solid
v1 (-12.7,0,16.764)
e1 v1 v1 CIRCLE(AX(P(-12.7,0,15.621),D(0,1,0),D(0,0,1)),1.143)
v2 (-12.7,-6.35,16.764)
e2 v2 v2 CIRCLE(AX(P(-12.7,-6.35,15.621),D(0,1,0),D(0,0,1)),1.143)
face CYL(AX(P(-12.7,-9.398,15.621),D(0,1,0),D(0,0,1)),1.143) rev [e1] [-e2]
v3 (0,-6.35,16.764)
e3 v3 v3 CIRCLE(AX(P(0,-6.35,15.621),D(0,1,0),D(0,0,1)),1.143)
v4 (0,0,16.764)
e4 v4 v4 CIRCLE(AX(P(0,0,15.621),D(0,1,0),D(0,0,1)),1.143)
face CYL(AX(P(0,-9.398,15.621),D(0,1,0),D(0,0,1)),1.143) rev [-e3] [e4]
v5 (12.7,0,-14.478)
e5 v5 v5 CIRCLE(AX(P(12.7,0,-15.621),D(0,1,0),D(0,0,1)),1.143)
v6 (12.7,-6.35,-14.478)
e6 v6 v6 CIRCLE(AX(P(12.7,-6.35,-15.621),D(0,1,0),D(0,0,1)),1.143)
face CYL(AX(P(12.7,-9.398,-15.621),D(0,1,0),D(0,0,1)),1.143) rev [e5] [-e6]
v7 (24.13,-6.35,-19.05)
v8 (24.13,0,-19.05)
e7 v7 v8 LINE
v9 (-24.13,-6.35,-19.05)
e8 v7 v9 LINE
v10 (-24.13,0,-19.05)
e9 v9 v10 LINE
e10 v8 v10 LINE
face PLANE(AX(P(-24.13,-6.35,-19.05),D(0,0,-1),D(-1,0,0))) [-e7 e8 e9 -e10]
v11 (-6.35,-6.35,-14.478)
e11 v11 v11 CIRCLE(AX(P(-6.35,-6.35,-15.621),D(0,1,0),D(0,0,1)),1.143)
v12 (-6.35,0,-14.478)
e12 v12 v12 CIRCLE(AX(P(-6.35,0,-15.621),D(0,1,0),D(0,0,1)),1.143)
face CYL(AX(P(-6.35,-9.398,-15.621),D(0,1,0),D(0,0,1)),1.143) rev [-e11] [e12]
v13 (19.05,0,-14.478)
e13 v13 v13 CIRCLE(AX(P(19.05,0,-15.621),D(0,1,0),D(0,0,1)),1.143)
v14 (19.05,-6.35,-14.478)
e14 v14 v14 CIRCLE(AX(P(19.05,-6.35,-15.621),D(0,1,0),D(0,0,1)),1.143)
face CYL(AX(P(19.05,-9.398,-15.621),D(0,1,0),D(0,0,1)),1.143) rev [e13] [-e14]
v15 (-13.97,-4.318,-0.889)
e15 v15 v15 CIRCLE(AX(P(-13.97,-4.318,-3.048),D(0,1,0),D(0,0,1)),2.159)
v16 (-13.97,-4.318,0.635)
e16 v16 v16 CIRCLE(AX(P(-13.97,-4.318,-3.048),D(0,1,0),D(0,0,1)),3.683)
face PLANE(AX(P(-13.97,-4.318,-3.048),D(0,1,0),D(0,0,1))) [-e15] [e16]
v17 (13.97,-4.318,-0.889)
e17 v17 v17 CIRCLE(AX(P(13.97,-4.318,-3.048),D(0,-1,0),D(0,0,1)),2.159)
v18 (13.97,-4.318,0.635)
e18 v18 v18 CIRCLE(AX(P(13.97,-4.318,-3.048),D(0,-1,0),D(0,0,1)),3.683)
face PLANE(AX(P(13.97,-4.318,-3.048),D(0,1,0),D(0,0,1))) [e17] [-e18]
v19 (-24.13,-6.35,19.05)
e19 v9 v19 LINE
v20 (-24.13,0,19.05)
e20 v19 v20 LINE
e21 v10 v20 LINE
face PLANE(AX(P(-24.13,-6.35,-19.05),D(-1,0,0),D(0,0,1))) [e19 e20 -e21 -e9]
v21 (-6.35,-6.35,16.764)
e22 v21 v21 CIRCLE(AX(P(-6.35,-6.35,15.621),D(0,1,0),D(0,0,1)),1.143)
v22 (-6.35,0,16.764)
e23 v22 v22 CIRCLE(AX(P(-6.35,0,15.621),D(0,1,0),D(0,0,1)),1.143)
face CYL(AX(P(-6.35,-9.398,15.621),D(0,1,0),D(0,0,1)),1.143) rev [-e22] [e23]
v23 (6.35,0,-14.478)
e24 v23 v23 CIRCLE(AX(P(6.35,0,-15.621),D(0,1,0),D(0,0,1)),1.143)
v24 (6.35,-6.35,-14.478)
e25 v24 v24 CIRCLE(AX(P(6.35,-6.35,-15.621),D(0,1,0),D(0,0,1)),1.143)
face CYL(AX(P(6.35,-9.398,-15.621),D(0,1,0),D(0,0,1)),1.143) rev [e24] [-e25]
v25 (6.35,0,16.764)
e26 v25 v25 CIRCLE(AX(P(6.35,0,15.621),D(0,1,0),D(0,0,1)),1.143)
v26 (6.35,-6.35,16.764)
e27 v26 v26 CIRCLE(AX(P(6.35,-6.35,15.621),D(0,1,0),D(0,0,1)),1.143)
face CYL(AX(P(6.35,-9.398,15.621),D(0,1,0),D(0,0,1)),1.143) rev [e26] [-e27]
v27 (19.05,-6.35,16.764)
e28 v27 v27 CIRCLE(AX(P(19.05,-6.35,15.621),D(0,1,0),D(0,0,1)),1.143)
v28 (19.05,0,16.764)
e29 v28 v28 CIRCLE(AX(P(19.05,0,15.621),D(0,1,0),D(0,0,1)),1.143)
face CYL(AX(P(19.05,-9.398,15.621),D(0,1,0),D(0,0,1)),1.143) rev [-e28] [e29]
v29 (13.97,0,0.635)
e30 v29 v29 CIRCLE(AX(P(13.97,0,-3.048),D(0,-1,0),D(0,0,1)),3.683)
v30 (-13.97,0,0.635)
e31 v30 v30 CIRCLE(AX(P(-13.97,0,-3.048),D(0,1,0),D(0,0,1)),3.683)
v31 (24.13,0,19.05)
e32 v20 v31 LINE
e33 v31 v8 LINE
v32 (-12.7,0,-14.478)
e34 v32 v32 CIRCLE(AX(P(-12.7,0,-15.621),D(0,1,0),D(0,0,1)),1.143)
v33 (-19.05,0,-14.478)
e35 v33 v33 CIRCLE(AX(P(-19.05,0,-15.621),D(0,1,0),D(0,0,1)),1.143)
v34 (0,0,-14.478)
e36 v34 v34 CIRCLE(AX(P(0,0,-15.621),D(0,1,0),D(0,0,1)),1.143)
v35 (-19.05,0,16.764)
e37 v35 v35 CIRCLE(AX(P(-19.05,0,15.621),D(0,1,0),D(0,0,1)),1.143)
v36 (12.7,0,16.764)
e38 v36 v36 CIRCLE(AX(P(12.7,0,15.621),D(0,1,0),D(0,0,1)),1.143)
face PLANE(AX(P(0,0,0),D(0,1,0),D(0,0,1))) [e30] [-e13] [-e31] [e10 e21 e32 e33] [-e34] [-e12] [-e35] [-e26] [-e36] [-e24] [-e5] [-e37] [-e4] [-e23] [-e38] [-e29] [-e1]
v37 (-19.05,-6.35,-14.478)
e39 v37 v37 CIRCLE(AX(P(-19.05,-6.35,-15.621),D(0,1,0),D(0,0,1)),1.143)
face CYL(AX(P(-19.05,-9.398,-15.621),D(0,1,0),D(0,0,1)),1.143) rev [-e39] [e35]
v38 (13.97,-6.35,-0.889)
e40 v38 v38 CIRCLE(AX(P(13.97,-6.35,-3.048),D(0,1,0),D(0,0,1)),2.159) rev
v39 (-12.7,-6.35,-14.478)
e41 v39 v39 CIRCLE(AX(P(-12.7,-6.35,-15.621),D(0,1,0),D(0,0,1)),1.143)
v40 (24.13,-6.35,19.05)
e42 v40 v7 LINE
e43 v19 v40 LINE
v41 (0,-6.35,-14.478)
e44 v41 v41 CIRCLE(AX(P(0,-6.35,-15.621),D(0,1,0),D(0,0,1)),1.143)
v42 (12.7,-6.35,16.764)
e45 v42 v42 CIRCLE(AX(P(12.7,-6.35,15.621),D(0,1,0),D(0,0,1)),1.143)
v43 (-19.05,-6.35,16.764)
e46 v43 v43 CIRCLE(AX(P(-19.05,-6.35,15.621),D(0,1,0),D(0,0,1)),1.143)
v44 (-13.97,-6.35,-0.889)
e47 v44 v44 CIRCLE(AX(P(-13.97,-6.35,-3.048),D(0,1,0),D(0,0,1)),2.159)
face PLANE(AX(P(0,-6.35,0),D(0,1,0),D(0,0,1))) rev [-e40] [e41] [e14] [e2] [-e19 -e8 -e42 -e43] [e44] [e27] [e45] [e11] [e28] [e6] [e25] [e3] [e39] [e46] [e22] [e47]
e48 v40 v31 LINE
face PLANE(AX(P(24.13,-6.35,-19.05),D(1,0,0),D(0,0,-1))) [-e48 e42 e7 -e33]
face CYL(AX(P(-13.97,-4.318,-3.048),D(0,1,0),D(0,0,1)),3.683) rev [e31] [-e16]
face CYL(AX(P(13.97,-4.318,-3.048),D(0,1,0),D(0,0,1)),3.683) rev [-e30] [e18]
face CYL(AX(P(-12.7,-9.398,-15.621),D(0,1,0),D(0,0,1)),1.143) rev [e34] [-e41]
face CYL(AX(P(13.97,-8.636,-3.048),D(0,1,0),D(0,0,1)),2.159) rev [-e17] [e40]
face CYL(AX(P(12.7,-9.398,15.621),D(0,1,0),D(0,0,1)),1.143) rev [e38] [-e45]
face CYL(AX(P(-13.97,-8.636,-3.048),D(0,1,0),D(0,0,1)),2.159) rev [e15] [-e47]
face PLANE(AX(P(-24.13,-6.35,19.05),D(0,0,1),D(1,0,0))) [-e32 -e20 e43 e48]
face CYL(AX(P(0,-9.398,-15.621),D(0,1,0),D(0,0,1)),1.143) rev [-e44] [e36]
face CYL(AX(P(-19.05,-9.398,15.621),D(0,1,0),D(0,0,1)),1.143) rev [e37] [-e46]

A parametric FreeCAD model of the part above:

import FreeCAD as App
import Part
import Sketcher
Q = App.Units.Quantity

doc = App.newDocument("Part")
body = doc.addObject("PartDesign::Body", "Body")

# Sketch on XZ plane
sketch1 = body.newObject("Sketcher::SketchObject", "Sketch")
sketch1.AttachmentSupport = (doc.getObject("XZ_Plane"), [""])
sketch1.MapMode = "FlatFace"
sketch1.addGeometry([
    Part.LineSegment(App.Vector(-24.13, -19.05, 0), App.Vector(-24.13, 19.05, 0)),
    Part.LineSegment(App.Vector(-24.13, 19.05, 0), App.Vector(24.13, 19.05, 0)),
    Part.LineSegment(App.Vector(24.13, 19.05, 0), App.Vector(24.13, -19.05, 0)),
    Part.LineSegment(App.Vector(24.13, -19.05, 0), App.Vector(-24.13, -19.05, 0)),
], False)
sketch1.addConstraint([
    Sketcher.Constraint("Coincident", 0, 2, 1, 1),
    Sketcher.Constraint("Coincident", 1, 2, 2, 1),
    Sketcher.Constraint("Coincident", 2, 2, 3, 1),
    Sketcher.Constraint("Coincident", 3, 2, 0, 1),
    Sketcher.Constraint("Vertical", 0),
    Sketcher.Constraint("Horizontal", 1),
    Sketcher.Constraint("Vertical", 2),
    Sketcher.Constraint("Horizontal", 3),
    Sketcher.Constraint("Symmetric", 0, 2, 2, 2, -1, 1),
    Sketcher.Constraint("DistanceX", 1, 1, 1, 2, Q("1.9 in")),
    Sketcher.Constraint("DistanceY", 0, 1, 0, 2, Q("1.5 in")),
])
pad1 = body.newObject("PartDesign::Pad", "Pad")
pad1.Profile = sketch1
pad1.Length = Q("0.25 in")

# Sketch on XZ plane
sketch2 = body.newObject("Sketcher::SketchObject", "Sketch001")
sketch2.AttachmentSupport = (doc.getObject("XZ_Plane"), [""])
sketch2.MapMode = "FlatFace"
sketch2.addGeometry(Part.Circle(App.Vector(-13.97, -3.048, 0), App.Vector(0, 0, 1), 3.683), False)
sketch2.addConstraint([
    Sketcher.Constraint("Diameter", 0, Q("0.29 in")),
    Sketcher.Constraint("DistanceX", 0, 3, -1, 1, Q("0.55 in")),
    Sketcher.Constraint("DistanceY", 0, 3, -1, 1, Q("0.12 in")),
])
pocket1 = body.newObject("PartDesign::Pocket", "Pocket")
pocket1.Profile = sketch2
pocket1.Length = Q("0.17 in")
pocket1.Reversed = True

# Sketch on XZ plane
sketch3 = body.newObject("Sketcher::SketchObject", "Sketch002")
sketch3.AttachmentSupport = (doc.getObject("XZ_Plane"), [""])
sketch3.MapMode = "FlatFace"
sketch3.AttachmentOffset = App.Placement(App.Vector(0, 0, 0.17 * 25.4), App.Rotation())
sketch3.addGeometry(Part.Circle(App.Vector(-13.97, -3.048, 0), App.Vector(0, 0, 1), 2.159), False)
sketch3.addConstraint([
    Sketcher.Constraint("Diameter", 0, Q("0.17 in")),
    Sketcher.Constraint("DistanceX", 0, 3, -1, 1, Q("0.55 in")),
    Sketcher.Constraint("DistanceY", 0, 3, -1, 1, Q("0.12 in")),
])
pocket2 = body.newObject("PartDesign::Pocket", "Pocket001")
pocket2.Profile = sketch3
pocket2.Length = Q("0.17 in")
pocket2.Reversed = True

# Sketch on XZ plane
sketch4 = body.newObject("Sketcher::SketchObject", "Sketch003")
sketch4.AttachmentSupport = (doc.getObject("XZ_Plane"), [""])
sketch4.MapMode = "FlatFace"
sketch4.addGeometry([
    Part.Circle(App.Vector(-19.05, -15.621, 0), App.Vector(0, 0, 1), 1.143),
    Part.Circle(App.Vector(-19.05, 15.621, 0), App.Vector(0, 0, 1), 1.143),
], False)
sketch4.addConstraint([
    Sketcher.Constraint("Equal", 0, 1),
    Sketcher.Constraint("Symmetric", 0, 3, 1, 3, -1),
    Sketcher.Constraint("Diameter", 0, Q("0.09 in")),
    Sketcher.Constraint("DistanceX", 0, 3, -1, 1, Q("0.75 in")),
    Sketcher.Constraint("DistanceY", 0, 3, 1, 3, Q("1.23 in")),
])
pocket3 = body.newObject("PartDesign::Pocket", "Pocket002")
pocket3.Profile = sketch4
pocket3.Length = Q("0.37 in")
pocket3.Reversed = True
doc.recompute()

linearpattern = body.newObject("PartDesign::LinearPattern", "LinearPattern")
linearpattern.Originals = [pocket3]
linearpattern.Direction = (doc.getObject("X_Axis"), [""])
linearpattern.Mode = "offset"
linearpattern.Offset = Q("0.25 in")
linearpattern.Occurrences = 7
body.Tip = linearpattern
doc.recompute()

mirrored = body.newObject("PartDesign::Mirrored", "Mirrored")
mirrored.Originals = [pocket1, pocket2]
mirrored.MirrorPlane = (doc.getObject("YZ_Plane"), [""])
body.Tip = mirrored

doc.recompute()
